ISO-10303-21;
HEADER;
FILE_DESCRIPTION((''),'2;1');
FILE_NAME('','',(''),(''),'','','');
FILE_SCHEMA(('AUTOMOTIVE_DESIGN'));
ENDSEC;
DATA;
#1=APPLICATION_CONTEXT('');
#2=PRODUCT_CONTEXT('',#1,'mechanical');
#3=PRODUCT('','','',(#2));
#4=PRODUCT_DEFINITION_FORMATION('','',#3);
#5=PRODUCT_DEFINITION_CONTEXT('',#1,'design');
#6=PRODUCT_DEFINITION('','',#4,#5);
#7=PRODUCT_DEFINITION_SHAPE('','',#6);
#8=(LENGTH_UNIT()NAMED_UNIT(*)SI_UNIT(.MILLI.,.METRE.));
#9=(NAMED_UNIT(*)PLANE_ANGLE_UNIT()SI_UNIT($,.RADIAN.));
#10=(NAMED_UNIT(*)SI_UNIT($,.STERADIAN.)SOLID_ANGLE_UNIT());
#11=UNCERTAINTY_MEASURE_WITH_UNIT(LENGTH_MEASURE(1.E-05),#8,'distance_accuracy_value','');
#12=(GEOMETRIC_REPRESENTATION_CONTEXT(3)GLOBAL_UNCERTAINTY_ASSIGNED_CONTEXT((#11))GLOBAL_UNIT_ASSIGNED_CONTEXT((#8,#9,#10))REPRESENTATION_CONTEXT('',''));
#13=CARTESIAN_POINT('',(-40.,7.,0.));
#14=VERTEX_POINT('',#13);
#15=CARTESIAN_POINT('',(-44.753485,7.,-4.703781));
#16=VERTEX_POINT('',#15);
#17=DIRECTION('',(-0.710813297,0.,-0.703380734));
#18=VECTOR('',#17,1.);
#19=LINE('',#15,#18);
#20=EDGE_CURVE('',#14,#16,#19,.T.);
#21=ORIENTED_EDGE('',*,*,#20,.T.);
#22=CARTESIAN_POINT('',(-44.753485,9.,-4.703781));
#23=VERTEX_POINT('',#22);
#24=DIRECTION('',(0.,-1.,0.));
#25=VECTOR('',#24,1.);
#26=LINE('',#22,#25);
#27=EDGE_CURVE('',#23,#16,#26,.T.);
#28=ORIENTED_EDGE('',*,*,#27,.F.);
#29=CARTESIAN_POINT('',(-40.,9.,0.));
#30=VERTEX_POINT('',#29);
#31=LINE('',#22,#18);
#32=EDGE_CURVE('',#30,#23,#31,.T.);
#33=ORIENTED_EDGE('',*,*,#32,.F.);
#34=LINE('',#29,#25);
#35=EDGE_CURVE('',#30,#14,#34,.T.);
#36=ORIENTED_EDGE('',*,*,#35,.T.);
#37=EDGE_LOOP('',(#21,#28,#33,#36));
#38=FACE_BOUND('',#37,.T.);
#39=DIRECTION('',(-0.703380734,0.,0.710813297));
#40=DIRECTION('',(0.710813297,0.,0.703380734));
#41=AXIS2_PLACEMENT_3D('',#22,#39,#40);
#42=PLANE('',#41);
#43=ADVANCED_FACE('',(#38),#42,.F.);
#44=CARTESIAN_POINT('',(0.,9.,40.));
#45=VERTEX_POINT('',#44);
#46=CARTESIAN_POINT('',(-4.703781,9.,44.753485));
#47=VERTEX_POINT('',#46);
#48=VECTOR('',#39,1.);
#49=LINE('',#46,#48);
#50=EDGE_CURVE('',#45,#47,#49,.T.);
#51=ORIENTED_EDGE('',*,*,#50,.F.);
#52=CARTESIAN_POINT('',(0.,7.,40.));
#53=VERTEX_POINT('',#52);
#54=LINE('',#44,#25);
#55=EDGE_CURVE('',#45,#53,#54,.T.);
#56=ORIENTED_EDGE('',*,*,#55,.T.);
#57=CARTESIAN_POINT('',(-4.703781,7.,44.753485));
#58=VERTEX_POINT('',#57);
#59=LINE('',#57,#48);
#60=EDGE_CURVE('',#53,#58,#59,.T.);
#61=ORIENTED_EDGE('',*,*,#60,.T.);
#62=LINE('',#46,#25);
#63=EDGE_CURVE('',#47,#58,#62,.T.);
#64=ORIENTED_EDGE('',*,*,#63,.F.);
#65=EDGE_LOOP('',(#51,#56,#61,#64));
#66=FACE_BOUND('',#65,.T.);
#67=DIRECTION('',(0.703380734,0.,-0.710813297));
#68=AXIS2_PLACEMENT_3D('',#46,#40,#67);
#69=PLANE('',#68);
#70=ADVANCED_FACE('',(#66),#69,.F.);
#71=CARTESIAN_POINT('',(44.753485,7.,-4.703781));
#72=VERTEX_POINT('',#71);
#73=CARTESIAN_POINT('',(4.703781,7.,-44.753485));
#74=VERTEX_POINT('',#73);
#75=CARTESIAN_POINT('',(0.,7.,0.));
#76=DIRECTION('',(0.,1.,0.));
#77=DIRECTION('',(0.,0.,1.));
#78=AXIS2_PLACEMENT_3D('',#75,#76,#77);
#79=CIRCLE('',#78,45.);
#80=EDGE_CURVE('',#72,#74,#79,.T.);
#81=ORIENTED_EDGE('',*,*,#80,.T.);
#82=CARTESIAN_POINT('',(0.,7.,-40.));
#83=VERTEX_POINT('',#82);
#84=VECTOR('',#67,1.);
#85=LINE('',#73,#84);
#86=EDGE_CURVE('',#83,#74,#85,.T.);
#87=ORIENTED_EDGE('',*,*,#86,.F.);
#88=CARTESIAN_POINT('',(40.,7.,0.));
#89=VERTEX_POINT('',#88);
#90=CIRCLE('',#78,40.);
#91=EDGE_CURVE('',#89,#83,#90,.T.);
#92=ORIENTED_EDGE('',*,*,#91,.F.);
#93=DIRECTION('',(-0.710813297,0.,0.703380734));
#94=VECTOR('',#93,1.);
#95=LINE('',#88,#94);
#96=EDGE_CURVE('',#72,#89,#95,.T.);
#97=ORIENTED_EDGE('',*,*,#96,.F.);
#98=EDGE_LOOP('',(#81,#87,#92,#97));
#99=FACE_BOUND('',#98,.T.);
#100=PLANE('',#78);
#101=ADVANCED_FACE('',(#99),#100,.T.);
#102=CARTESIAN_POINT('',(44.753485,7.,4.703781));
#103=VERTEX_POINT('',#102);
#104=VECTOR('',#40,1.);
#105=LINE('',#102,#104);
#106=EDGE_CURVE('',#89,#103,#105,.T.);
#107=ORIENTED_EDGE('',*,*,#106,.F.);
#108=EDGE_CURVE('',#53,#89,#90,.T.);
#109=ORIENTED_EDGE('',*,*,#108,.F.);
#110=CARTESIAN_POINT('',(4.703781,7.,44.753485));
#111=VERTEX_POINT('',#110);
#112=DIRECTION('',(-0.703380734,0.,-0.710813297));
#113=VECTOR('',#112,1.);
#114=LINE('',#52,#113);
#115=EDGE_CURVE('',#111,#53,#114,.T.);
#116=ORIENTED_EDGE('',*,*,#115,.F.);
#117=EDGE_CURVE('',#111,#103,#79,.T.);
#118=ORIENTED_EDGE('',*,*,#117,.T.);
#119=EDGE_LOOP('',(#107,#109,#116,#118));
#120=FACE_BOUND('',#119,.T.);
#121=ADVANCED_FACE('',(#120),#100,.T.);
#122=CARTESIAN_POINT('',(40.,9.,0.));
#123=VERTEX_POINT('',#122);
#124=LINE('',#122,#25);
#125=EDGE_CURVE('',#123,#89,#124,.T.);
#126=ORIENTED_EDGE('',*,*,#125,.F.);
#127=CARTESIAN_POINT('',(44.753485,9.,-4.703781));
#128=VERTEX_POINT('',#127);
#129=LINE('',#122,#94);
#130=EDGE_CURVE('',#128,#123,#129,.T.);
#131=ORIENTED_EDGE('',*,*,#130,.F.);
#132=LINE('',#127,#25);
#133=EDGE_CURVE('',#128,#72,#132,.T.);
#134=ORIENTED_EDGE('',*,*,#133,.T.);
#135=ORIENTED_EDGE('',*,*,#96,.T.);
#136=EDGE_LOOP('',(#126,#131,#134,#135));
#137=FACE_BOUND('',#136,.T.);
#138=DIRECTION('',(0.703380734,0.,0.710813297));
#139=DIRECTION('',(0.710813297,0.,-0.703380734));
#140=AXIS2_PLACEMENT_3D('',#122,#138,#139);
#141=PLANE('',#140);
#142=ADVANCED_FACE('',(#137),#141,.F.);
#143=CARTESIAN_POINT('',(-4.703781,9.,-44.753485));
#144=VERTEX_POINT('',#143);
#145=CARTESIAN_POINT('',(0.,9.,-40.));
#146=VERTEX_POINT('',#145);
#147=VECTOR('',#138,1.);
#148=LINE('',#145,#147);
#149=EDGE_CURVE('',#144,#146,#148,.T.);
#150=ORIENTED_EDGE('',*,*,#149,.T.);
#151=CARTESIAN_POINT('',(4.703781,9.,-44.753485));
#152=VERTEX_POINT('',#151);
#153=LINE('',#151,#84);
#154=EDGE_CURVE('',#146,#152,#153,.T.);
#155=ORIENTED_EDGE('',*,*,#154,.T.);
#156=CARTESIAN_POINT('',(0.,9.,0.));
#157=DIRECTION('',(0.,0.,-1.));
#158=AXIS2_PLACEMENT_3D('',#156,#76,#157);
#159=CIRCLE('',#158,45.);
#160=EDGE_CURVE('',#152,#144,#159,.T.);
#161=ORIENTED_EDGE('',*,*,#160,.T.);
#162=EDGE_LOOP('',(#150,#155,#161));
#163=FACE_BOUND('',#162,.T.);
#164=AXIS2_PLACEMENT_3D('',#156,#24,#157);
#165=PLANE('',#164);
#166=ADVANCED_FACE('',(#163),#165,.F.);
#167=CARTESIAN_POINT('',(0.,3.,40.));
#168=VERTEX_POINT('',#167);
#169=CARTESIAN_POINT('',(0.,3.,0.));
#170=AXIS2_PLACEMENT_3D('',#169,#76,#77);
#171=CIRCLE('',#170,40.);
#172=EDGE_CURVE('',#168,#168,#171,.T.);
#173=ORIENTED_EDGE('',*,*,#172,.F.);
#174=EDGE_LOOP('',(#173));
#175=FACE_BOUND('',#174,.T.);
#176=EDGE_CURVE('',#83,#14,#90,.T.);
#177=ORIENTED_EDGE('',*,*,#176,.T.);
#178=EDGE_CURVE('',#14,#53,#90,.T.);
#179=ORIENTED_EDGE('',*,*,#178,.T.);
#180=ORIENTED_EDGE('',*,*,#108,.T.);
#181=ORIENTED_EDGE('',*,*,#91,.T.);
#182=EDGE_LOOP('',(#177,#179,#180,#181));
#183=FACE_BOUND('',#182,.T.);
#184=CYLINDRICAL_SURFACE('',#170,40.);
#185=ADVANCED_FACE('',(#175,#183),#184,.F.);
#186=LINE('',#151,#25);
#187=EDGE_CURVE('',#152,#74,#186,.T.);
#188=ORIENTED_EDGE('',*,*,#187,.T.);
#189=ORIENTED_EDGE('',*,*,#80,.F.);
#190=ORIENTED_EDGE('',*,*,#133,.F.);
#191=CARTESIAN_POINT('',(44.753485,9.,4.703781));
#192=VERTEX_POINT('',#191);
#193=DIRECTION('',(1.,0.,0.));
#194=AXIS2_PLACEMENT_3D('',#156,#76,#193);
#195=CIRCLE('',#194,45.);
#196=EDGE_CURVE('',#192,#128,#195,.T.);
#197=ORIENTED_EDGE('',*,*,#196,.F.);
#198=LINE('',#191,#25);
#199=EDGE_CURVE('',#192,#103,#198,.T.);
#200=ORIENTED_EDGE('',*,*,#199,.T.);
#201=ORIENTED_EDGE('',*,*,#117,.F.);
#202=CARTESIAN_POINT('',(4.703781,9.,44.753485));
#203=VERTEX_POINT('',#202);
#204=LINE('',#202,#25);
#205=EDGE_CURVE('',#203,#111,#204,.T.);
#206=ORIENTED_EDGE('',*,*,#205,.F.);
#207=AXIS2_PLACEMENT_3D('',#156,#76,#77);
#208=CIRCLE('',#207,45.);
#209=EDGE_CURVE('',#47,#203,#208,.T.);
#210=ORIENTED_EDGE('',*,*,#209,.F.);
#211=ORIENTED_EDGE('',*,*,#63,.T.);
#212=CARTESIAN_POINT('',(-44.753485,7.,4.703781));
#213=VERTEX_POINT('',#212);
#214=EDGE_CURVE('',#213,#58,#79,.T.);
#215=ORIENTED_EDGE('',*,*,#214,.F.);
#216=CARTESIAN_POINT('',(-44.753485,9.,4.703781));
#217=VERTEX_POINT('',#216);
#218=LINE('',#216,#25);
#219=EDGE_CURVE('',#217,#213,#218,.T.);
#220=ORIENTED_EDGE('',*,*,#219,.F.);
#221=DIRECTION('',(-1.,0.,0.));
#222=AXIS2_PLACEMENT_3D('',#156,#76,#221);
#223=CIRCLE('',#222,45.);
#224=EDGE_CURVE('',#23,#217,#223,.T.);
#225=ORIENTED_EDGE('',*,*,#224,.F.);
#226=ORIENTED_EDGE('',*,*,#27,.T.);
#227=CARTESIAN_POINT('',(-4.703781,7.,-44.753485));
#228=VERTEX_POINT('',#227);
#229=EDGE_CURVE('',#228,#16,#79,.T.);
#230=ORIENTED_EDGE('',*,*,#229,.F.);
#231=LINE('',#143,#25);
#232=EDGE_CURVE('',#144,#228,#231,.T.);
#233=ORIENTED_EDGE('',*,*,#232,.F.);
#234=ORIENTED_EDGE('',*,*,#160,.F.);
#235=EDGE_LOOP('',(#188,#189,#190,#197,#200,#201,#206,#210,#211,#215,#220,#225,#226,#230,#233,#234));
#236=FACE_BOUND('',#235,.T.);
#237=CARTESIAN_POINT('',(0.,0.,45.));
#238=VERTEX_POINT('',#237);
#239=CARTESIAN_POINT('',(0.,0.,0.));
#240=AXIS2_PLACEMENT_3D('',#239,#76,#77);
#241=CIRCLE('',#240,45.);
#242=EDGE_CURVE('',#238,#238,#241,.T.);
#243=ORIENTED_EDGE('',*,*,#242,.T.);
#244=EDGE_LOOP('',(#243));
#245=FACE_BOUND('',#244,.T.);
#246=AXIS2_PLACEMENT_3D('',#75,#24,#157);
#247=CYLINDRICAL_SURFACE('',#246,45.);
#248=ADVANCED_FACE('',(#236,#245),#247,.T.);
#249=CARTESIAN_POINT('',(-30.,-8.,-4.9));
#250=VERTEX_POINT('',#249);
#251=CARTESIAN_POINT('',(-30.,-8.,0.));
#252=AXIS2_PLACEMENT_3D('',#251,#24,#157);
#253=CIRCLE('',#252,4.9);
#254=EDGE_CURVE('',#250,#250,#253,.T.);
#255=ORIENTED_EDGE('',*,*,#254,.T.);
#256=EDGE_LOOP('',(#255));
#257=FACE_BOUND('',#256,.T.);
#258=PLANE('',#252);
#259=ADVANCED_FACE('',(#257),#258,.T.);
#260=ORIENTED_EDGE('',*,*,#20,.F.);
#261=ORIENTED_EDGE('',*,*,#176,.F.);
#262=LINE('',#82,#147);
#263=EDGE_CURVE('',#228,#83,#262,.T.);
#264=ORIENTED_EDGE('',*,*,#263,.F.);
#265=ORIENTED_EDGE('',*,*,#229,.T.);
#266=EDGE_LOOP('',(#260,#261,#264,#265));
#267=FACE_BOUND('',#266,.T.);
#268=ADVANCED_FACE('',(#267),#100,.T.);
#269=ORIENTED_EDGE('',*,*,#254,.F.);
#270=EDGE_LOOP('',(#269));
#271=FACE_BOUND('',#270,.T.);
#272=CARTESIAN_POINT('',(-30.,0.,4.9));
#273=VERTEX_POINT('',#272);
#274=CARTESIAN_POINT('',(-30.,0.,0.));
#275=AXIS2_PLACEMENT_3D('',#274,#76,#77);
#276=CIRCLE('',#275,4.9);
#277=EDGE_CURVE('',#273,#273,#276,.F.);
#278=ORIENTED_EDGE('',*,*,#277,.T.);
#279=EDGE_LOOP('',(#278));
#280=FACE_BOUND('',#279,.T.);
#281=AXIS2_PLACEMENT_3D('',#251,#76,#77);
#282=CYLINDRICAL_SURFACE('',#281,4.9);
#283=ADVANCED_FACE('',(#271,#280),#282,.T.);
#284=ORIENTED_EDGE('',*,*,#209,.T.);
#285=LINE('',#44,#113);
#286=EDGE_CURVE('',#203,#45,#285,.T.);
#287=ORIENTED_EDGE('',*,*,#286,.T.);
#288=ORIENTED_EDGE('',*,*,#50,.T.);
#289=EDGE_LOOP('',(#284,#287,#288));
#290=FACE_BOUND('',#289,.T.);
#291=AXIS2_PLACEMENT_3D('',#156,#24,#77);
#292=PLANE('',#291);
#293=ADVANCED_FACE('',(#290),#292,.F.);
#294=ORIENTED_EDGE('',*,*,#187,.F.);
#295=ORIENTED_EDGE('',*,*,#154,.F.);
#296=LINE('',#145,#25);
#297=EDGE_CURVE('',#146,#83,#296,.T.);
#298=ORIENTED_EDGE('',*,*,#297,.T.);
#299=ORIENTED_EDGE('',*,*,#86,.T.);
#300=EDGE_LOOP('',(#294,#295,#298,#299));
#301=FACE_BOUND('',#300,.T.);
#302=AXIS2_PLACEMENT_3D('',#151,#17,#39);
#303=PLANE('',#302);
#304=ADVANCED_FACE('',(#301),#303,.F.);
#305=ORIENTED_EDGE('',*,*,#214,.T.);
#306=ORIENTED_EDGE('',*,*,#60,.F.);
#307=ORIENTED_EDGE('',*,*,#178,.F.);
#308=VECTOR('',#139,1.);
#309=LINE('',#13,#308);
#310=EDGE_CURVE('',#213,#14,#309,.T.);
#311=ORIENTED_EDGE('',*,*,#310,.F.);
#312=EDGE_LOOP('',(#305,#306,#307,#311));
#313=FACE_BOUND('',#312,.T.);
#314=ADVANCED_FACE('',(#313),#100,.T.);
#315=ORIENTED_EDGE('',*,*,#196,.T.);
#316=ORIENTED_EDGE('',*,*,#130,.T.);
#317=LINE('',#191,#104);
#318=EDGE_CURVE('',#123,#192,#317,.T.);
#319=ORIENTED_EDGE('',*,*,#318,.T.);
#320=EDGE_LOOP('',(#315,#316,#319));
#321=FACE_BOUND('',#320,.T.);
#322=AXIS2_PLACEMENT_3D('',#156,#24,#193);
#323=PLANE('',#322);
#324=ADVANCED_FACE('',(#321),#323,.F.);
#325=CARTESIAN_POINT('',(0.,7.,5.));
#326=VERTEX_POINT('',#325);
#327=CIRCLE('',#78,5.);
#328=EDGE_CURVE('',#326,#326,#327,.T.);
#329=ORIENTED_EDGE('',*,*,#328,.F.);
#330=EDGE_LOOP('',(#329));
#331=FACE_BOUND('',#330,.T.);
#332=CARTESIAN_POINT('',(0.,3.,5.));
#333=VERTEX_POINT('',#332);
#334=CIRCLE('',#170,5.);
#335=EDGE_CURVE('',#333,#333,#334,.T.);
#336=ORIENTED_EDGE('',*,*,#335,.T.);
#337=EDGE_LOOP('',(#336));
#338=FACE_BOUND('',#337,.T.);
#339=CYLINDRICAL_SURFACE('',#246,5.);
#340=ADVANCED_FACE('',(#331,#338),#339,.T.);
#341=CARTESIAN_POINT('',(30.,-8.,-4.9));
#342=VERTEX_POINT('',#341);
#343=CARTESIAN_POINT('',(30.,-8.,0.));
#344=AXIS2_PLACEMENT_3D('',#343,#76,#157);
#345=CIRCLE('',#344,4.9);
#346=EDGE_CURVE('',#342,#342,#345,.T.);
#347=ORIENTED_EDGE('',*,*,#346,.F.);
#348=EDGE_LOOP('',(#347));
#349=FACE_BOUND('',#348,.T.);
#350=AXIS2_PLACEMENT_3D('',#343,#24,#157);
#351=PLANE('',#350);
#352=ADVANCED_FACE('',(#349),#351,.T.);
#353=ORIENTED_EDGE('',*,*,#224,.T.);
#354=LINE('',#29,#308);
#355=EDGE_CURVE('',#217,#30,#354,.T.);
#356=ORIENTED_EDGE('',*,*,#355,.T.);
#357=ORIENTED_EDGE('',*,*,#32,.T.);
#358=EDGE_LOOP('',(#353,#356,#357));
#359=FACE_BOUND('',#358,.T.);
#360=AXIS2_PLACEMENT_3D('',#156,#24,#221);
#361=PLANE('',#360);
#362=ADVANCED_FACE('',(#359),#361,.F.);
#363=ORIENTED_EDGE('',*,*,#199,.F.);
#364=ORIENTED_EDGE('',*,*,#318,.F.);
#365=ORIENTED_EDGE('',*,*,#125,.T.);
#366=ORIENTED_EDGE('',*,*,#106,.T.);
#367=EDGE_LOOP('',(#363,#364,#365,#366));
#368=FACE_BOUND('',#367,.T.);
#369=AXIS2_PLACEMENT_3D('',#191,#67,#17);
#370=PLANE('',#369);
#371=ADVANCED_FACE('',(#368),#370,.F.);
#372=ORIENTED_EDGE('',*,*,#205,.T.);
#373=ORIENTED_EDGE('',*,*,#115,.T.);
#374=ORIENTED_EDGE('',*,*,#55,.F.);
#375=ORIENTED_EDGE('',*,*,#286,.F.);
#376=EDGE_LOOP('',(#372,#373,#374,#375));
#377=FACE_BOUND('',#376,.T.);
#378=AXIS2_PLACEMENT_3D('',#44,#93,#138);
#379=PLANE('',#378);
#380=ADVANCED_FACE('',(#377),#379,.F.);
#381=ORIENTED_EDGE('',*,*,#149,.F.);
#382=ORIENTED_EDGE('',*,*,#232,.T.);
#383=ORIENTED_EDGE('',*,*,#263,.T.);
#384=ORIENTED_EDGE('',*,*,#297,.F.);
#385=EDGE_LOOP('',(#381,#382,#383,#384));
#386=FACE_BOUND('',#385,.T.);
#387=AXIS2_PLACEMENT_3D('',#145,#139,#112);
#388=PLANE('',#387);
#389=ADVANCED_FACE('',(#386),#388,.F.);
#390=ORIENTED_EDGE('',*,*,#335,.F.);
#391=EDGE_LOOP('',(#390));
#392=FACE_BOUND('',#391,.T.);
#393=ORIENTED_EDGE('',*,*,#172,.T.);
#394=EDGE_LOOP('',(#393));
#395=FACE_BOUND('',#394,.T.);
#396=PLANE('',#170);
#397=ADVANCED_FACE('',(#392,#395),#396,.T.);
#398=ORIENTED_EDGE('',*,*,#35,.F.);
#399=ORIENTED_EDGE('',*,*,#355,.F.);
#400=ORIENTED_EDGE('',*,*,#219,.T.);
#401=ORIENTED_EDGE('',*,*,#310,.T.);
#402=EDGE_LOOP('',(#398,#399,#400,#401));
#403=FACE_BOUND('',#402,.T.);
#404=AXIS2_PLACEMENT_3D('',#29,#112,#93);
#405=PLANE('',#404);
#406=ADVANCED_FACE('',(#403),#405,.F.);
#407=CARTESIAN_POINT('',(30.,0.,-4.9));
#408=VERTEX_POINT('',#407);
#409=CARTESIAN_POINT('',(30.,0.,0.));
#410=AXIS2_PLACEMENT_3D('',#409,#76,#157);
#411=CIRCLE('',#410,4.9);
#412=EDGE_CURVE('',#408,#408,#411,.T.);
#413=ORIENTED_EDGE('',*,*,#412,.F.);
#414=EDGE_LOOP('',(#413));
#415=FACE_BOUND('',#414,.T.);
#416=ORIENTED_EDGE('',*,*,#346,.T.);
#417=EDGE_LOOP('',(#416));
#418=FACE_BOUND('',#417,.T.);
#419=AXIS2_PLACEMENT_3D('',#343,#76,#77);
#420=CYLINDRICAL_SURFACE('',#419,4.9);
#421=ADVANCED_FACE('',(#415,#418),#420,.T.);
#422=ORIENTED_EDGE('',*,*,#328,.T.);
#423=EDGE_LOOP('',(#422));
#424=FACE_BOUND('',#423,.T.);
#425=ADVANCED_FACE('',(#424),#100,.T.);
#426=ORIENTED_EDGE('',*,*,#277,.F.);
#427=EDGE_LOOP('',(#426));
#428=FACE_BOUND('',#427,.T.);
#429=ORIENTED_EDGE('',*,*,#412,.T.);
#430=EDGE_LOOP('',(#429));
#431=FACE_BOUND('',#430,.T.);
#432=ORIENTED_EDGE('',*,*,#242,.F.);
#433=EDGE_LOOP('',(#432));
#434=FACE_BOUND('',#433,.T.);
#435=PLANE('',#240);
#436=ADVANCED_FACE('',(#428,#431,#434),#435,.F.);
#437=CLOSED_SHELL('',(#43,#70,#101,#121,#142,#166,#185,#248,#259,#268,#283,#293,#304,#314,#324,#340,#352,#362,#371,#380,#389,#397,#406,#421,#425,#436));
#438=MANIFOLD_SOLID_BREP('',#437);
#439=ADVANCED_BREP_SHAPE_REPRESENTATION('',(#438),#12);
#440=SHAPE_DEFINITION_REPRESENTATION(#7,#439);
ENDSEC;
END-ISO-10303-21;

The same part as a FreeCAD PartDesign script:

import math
import FreeCAD as App
import Part
import Sketcher
from FreeCAD import Vector
Q = App.Units.Quantity

doc = App.newDocument("Part")
params = doc.addObject("Spreadsheet::Sheet", "Params")
for row, (alias, value) in enumerate([
    ("sketch1_diameter", "90 mm"),
    ("pad1_length", "7 mm"),
    ("sketch2_diameter", "80 mm"),
    ("pocket1_length", "4 mm"),
    ("sketch3_diameter", "10 mm"),
    ("pad2_length", "4 mm"),
    ("sketch4_radius", "45 mm"),
    ("pad3_length", "2 mm"),
    ("sketch5_diameter", "9.8 mm"),
    ("pad4_length", "8 mm"),
], start=1):
    params.set(f"A{row}", alias)
    params.set(f"B{row}", "=" + value)
    params.setAlias(f"B{row}", alias)

body = doc.addObject("PartDesign::Body", "Body")

# Sketch on XZ plane
sketch1 = body.newObject("Sketcher::SketchObject", "Sketch")
sketch1.AttachmentSupport = (doc.getObject("XZ_Plane"), [""])
sketch1.MapMode = "FlatFace"
sketch1.addGeometry(Part.Circle(Vector(0, 0, 0), Vector(0, 0, 1), 45), False)
sketch1.addConstraint([
    Sketcher.Constraint("Coincident", 0, 3, -1, 1),
    Sketcher.Constraint("Diameter", 0, Q("90 mm")),
])
sketch1.setExpression("Constraints[1]", "Params.sketch1_diameter")
pad1 = body.newObject("PartDesign::Pad", "Pad")
pad1.Profile = sketch1
pad1.setExpression("Length", "Params.pad1_length")
pad1.Reversed = True

# Sketch on XZ plane
sketch2 = body.newObject("Sketcher::SketchObject", "Sketch001")
sketch2.AttachmentSupport = (doc.getObject("XZ_Plane"), [""])
sketch2.MapMode = "FlatFace"
sketch2.AttachmentOffset = App.Placement(Vector(0, 0, -7), App.Rotation())
sketch2.addGeometry(Part.Circle(Vector(0, 0, 0), Vector(0, 0, 1), 40), False)
sketch2.addConstraint([
    Sketcher.Constraint("Coincident", 0, 3, -1, 1),
    Sketcher.Constraint("Diameter", 0, Q("80 mm")),
])
sketch2.setExpression("Constraints[1]", "Params.sketch2_diameter")
pocket1 = body.newObject("PartDesign::Pocket", "Pocket")
pocket1.Profile = sketch2
pocket1.setExpression("Length", "Params.pocket1_length")
pocket1.Reversed = True

# Sketch on XZ plane
sketch3 = body.newObject("Sketcher::SketchObject", "Sketch002")
sketch3.AttachmentSupport = (doc.getObject("XZ_Plane"), [""])
sketch3.MapMode = "FlatFace"
sketch3.AttachmentOffset = App.Placement(Vector(0, 0, -3), App.Rotation())
sketch3.addGeometry(Part.Circle(Vector(0, 0, 0), Vector(0, 0, 1), 5), False)
sketch3.addConstraint([
    Sketcher.Constraint("Coincident", 0, 3, -1, 1),
    Sketcher.Constraint("Diameter", 0, Q("10 mm")),
])
sketch3.setExpression("Constraints[1]", "Params.sketch3_diameter")
pad2 = body.newObject("PartDesign::Pad", "Pad001")
pad2.Profile = sketch3
pad2.setExpression("Length", "Params.pad2_length")
pad2.Reversed = True

# Sketch on XZ plane
sketch4 = body.newObject("Sketcher::SketchObject", "Sketch003")
sketch4.AttachmentSupport = (doc.getObject("XZ_Plane"), [""])
sketch4.MapMode = "FlatFace"
sketch4.AttachmentOffset = App.Placement(Vector(0, 0, -7), App.Rotation())
sketch4.addGeometry([
    Part.LineSegment(Vector(-5, -45, 0), Vector(0, -40, 0)),
    Part.LineSegment(Vector(0, -40, 0), Vector(5, -45, 0)),
    Part.ArcOfCircle(Part.Circle(Vector(0, 0, 0), Vector(0, 0, 1), 45), math.radians(-96), math.radians(-84)),
], False)
sketch4.addConstraint([
    Sketcher.Constraint("Coincident", 0, 2, 1, 1),
    Sketcher.Constraint("Coincident", 1, 2, 2, 2),
    Sketcher.Constraint("Coincident", 2, 1, 0, 1),
    Sketcher.Constraint("Coincident", 2, 3, -1, 1),
    Sketcher.Constraint("PointOnObject", 0, 2, -2),
    Sketcher.Constraint("Horizontal", 1, 2, 2, 1),
    Sketcher.Constraint("Radius", 2, Q("45 mm")),
    Sketcher.Constraint("DistanceY", 0, 2, -1, 1, Q("40 mm")),
    Sketcher.Constraint("Distance", 0, Q("6.687389 mm")),
])
sketch4.setExpression("Constraints[6]", "Params.sketch4_radius")
pad3 = body.newObject("PartDesign::Pad", "Pad002")
pad3.Profile = sketch4
pad3.setExpression("Length", "Params.pad3_length")
pad3.Reversed = True
doc.recompute()

polarpattern = body.newObject("PartDesign::PolarPattern", "PolarPattern")
polarpattern.Originals = [pad3]
polarpattern.Axis = (doc.getObject("Y_Axis"), [""])
polarpattern.Angle = 360
polarpattern.Occurrences = 4
body.Tip = polarpattern

# Sketch on XZ plane
sketch5 = body.newObject("Sketcher::SketchObject", "Sketch004")
sketch5.AttachmentSupport = (doc.getObject("XZ_Plane"), [""])
sketch5.MapMode = "FlatFace"
sketch5.addGeometry(Part.Circle(Vector(-30, 0, 0), Vector(0, 0, 1), 4.9), False)
sketch5.addConstraint([
    Sketcher.Constraint("PointOnObject", 0, 3, -1),
    Sketcher.Constraint("Diameter", 0, Q("9.8 mm")),
    Sketcher.Constraint("DistanceX", 0, 3, -1, 1, Q("30 mm")),
])
sketch5.setExpression("Constraints[1]", "Params.sketch5_diameter")
pad4 = body.newObject("PartDesign::Pad", "Pad003")
pad4.Profile = sketch5
pad4.setExpression("Length", "Params.pad4_length")
doc.recompute()

mirrored = body.newObject("PartDesign::Mirrored", "Mirrored")
mirrored.Originals = [pad4]
mirrored.MirrorPlane = (doc.getObject("YZ_Plane"), [""])
body.Tip = mirrored

doc.recompute()
